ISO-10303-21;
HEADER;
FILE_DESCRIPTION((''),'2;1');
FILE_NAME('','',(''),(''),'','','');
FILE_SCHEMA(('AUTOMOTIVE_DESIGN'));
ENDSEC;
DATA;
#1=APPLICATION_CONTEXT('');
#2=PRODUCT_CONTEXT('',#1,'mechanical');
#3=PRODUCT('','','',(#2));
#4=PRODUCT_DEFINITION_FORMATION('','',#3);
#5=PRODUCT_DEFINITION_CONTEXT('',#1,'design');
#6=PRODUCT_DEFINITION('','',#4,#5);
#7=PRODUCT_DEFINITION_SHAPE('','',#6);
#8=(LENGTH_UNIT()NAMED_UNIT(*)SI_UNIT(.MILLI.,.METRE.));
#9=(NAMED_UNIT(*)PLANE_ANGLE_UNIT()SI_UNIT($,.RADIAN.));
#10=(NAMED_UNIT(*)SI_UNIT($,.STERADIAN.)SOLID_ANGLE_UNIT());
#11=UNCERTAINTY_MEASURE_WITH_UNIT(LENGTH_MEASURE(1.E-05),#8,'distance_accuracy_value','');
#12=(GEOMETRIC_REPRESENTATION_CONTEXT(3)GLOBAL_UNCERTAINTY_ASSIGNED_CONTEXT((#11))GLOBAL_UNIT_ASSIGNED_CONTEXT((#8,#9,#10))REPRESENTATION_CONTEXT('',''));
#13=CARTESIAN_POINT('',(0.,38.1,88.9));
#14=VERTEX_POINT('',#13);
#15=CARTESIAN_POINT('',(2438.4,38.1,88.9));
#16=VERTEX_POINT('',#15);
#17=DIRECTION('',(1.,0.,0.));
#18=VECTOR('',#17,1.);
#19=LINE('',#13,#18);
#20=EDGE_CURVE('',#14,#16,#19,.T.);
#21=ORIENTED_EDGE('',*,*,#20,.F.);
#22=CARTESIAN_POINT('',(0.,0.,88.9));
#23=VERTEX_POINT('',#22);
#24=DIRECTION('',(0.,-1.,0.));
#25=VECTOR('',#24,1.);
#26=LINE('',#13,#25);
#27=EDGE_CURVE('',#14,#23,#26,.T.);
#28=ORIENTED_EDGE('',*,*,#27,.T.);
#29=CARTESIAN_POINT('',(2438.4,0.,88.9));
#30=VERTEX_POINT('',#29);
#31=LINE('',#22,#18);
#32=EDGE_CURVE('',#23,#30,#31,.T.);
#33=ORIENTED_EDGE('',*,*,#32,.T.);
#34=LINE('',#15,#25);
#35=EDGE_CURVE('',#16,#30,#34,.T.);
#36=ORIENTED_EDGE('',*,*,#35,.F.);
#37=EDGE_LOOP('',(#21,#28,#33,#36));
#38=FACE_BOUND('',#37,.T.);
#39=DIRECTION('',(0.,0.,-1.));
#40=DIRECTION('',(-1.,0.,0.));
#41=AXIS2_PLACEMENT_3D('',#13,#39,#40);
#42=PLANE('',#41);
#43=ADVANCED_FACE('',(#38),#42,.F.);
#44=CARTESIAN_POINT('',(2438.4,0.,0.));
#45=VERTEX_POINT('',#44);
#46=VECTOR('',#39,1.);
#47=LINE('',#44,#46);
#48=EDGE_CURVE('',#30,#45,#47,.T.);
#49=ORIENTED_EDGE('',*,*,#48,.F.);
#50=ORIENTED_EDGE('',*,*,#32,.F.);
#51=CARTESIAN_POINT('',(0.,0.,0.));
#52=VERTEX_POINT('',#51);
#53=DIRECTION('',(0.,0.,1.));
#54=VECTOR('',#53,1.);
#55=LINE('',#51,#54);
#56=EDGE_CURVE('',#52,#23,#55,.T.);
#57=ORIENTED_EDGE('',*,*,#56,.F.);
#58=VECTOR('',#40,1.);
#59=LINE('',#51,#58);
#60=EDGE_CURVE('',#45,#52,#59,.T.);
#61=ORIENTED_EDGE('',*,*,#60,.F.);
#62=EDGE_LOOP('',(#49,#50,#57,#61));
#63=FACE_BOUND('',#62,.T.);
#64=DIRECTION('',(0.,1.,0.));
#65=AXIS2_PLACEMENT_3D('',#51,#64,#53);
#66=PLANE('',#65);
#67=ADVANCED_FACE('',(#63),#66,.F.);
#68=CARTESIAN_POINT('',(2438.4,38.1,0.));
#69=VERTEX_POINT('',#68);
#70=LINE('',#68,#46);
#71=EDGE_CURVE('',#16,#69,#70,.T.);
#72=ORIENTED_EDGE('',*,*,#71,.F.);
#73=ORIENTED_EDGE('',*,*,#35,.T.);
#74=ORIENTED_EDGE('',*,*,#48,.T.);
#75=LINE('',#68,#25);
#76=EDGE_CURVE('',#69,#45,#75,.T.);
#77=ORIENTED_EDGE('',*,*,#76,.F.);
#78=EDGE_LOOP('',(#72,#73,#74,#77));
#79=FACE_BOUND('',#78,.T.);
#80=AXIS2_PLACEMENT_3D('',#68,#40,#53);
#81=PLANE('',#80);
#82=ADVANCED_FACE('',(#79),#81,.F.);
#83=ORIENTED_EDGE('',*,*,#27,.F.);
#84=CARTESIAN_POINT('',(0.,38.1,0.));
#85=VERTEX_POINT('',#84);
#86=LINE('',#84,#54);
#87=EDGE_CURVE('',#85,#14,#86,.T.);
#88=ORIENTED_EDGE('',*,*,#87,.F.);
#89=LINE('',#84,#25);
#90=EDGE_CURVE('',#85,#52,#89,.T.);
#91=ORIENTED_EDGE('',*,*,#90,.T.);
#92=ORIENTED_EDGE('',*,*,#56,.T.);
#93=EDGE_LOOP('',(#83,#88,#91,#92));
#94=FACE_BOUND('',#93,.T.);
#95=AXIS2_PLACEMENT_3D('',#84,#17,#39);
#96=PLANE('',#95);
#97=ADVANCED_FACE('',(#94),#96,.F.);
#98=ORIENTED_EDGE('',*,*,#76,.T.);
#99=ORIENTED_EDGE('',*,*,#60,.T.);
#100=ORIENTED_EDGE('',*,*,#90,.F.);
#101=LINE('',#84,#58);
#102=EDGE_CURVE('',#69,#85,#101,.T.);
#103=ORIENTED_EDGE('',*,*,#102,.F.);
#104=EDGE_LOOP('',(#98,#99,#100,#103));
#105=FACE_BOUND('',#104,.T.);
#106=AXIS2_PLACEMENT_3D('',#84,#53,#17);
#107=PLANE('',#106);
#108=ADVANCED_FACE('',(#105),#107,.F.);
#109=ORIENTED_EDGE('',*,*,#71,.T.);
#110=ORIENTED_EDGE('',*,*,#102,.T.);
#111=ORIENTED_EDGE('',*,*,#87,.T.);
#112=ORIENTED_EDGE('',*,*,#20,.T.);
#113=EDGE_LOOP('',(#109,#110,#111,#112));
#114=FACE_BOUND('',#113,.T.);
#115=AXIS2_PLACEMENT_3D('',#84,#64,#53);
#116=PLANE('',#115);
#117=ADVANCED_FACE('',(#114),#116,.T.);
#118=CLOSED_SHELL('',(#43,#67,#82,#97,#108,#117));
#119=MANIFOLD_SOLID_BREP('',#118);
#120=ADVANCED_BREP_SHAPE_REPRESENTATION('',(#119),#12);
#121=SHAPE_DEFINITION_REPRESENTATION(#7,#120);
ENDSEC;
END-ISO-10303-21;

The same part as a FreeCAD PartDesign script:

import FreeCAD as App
import Part
import Sketcher

V = App.Vector
Q = App.Units.Quantity

doc = App.newDocument("Part")
body = doc.addObject("PartDesign::Body", "Body")

# Sketch on XZ plane
sketch1 = doc.addObject("Sketcher::SketchObject", "Sketch")
body.addObject(sketch1)
sketch1.AttachmentSupport = (doc.XZ_Plane, [""])
sketch1.MapMode = "FlatFace"
sketch1.addGeometry(Part.LineSegment(V(0, 0, 0), V(0, 88.9, 0)), False)
sketch1.addGeometry(Part.LineSegment(V(0, 88.9, 0), V(2438.4, 88.9, 0)), False)
sketch1.addGeometry(Part.LineSegment(V(2438.4, 88.9, 0), V(2438.4, 0, 0)), False)
sketch1.addGeometry(Part.LineSegment(V(2438.4, 0, 0), V(0, 0, 0)), False)
sketch1.addConstraint(Sketcher.Constraint("Coincident", 0, 2, 1, 1))
sketch1.addConstraint(Sketcher.Constraint("Coincident", 1, 2, 2, 1))
sketch1.addConstraint(Sketcher.Constraint("Coincident", 2, 2, 3, 1))
sketch1.addConstraint(Sketcher.Constraint("Coincident", 3, 2, 0, 1))
sketch1.addConstraint(Sketcher.Constraint("Vertical", 0))
sketch1.addConstraint(Sketcher.Constraint("Horizontal", 1))
sketch1.addConstraint(Sketcher.Constraint("Vertical", 2))
sketch1.addConstraint(Sketcher.Constraint("Horizontal", 3))
sketch1.addConstraint(Sketcher.Constraint("Coincident", 3, 2, -1, 1))
sketch1.addConstraint(Sketcher.Constraint("DistanceX", 1, 1, 1, 2, Q("96 in")))
sketch1.addConstraint(Sketcher.Constraint("DistanceY", 0, 1, 0, 2, Q("3.5 in")))
pad1 = doc.addObject("PartDesign::Pad", "Pad")
body.addObject(pad1)
pad1.Profile = sketch1
pad1.Length = Q("1.5 in")
pad1.Reversed = True

doc.recompute()
